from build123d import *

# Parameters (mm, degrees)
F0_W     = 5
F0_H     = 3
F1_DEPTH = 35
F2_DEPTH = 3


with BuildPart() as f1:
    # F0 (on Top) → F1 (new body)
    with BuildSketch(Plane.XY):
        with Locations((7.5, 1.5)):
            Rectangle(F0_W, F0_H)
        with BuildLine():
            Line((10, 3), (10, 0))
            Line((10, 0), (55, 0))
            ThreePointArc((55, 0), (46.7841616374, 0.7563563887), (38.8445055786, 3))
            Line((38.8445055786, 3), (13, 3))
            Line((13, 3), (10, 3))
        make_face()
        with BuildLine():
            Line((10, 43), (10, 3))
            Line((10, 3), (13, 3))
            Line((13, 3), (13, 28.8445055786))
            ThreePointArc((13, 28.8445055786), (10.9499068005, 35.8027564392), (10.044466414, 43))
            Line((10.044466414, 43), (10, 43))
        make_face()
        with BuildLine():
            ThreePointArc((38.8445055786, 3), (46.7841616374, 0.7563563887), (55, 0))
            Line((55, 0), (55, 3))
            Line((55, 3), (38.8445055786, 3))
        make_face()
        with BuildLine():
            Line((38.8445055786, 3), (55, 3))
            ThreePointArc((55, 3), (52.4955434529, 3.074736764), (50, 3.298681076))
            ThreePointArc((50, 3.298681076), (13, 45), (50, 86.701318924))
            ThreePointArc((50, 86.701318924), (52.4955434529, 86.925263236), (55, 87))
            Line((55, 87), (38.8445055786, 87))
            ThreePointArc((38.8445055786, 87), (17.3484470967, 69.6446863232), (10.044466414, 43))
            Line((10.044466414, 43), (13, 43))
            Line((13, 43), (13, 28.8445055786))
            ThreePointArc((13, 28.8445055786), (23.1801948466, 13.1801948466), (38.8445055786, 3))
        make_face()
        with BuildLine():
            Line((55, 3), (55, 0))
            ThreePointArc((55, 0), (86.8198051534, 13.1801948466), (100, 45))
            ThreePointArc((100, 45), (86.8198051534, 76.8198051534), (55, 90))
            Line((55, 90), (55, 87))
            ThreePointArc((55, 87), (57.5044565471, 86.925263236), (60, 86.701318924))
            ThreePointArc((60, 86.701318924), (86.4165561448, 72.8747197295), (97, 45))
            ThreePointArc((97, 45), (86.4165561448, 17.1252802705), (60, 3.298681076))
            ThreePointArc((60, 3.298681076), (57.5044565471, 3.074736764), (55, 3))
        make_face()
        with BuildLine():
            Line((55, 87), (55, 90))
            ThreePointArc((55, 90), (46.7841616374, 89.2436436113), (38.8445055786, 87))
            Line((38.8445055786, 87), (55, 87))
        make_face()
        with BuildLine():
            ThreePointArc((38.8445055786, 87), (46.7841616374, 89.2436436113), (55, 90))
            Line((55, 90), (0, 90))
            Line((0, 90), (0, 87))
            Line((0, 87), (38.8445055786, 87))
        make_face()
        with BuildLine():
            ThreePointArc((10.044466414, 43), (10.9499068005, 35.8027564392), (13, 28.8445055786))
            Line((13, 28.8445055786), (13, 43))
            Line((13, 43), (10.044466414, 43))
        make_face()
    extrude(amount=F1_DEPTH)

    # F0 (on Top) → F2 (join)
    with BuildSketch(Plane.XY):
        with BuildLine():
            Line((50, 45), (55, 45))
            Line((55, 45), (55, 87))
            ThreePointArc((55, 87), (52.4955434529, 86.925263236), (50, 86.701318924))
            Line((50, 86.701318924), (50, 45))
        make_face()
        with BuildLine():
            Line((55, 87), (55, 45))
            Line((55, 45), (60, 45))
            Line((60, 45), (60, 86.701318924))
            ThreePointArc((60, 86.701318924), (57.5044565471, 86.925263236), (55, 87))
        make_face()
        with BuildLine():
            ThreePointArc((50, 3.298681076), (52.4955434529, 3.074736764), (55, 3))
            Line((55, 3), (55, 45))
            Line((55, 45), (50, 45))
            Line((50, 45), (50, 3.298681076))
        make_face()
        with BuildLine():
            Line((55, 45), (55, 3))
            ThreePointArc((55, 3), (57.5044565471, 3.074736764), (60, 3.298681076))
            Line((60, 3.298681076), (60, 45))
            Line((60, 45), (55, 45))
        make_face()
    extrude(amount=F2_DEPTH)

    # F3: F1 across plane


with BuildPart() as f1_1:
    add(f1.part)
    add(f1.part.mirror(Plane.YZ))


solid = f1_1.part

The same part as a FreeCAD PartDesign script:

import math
import FreeCAD as App
import Part
import Sketcher
from FreeCAD import Vector
Q = App.Units.Quantity

doc = App.newDocument("Part")
body = doc.addObject("PartDesign::Body", "Body")

sketch1 = body.newObject("Sketcher::SketchObject", "Sketch")
sketch1.AttachmentSupport = (doc.getObject("XY_Plane"), [""])
sketch1.MapMode = "FlatFace"
sketch1.addGeometry([
    Part.ArcOfCircle(Part.Circle(Vector(55, 45, 0), Vector(0, 0, 1), 45), math.radians(111.03947), math.radians(182.547318)),
    Part.LineSegment(Vector(10.044466, 43, 0), Vector(10, 43, 0)),
    Part.LineSegment(Vector(10, 43, 0), Vector(10, 3, 0)),
    Part.LineSegment(Vector(10, 3, 0), Vector(5, 3, 0)),
    Part.LineSegment(Vector(5, 3, 0), Vector(5, 0, 0)),
    Part.LineSegment(Vector(5, 0, 0), Vector(55, 0, 0)),
    Part.ArcOfCircle(Part.Circle(Vector(55, 45, 0), Vector(0, 0, 1), 45), math.radians(-90), math.radians(90)),
    Part.LineSegment(Vector(55, 90, 0), Vector(0, 90, 0)),
    Part.LineSegment(Vector(0, 90, 0), Vector(0, 87, 0)),
    Part.LineSegment(Vector(0, 87, 0), Vector(38.844506, 87, 0)),
    Part.LineSegment(Vector(13, 3, 0), Vector(13, 28.844506, 0)),
    Part.ArcOfCircle(Part.Circle(Vector(55, 45, 0), Vector(0, 0, 1), 45), math.radians(-158.96053), math.radians(-111.03947)),
    Part.LineSegment(Vector(38.844506, 3, 0), Vector(13, 3, 0)),
    Part.ArcOfCircle(Part.Circle(Vector(55, 45, 0), Vector(0, 0, 1), 42), math.radians(90), math.radians(96.837141)),
    Part.ArcOfCircle(Part.Circle(Vector(55, 45, 0), Vector(0, 0, 1), 42), math.radians(83.162859), math.radians(90)),
    Part.ArcOfCircle(Part.Circle(Vector(55, 45, 0), Vector(0, 0, 1), 42), math.radians(0), math.radians(83.162859)),
    Part.ArcOfCircle(Part.Circle(Vector(55, 45, 0), Vector(0, 0, 1), 42), math.radians(-83.162859), math.radians(0)),
    Part.ArcOfCircle(Part.Circle(Vector(55, 45, 0), Vector(0, 0, 1), 42), math.radians(-90), math.radians(-83.162859)),
    Part.ArcOfCircle(Part.Circle(Vector(55, 45, 0), Vector(0, 0, 1), 42), math.radians(-96.837141), math.radians(-90)),
    Part.ArcOfCircle(Part.Circle(Vector(55, 45, 0), Vector(0, 0, 1), 42), math.radians(96.837141), math.radians(263.162859)),
], False)
sketch1.addConstraint([
    Sketcher.Constraint("Coincident", 0, 2, 1, 1),
    Sketcher.Constraint("Coincident", 1, 2, 2, 1),
    Sketcher.Constraint("Coincident", 2, 2, 3, 1),
    Sketcher.Constraint("Coincident", 3, 2, 4, 1),
    Sketcher.Constraint("Coincident", 4, 2, 5, 1),
    Sketcher.Constraint("Tangent", 5, 2, 6, 1),
    Sketcher.Constraint("Tangent", 6, 2, 7, 1),
    Sketcher.Constraint("Coincident", 7, 2, 8, 1),
    Sketcher.Constraint("Coincident", 8, 2, 9, 1),
    Sketcher.Constraint("Coincident", 9, 2, 0, 1),
    Sketcher.Constraint("Coincident", 10, 2, 11, 1),
    Sketcher.Constraint("Coincident", 11, 2, 12, 1),
    Sketcher.Constraint("Coincident", 12, 2, 10, 1),
    Sketcher.Constraint("Tangent", 13, 1, 14, 2),
    Sketcher.Constraint("Tangent", 14, 1, 15, 2),
    Sketcher.Constraint("Tangent", 15, 1, 16, 2),
    Sketcher.Constraint("Tangent", 16, 1, 17, 2),
    Sketcher.Constraint("Tangent", 17, 1, 18, 2),
    Sketcher.Constraint("Tangent", 18, 1, 19, 2),
    Sketcher.Constraint("Tangent", 19, 1, 13, 2),
    Sketcher.Constraint("Horizontal", 1),
    Sketcher.Constraint("Vertical", 2),
    Sketcher.Constraint("Horizontal", 3),
    Sketcher.Constraint("Vertical", 4),
    Sketcher.Constraint("Horizontal", 5),
    Sketcher.Constraint("Horizontal", 7),
    Sketcher.Constraint("Vertical", 8),
    Sketcher.Constraint("Horizontal", 9),
    Sketcher.Constraint("Vertical", 10),
    Sketcher.Constraint("Horizontal", 12),
    Sketcher.Constraint("Coincident", 6, 3, 0, 3),
    Sketcher.Constraint("Coincident", 11, 3, 0, 3),
    Sketcher.Constraint("Coincident", 13, 3, 0, 3),
    Sketcher.Constraint("Coincident", 15, 3, 0, 3),
    Sketcher.Constraint("Coincident", 17, 3, 0, 3),
    Sketcher.Constraint("Equal", 0, 6),
    Sketcher.Constraint("Equal", 6, 11),
    Sketcher.Constraint("PointOnObject", 4, 2, -1),
    Sketcher.Constraint("PointOnObject", 7, 2, -2),
    Sketcher.Constraint("Horizontal", 3, 2, 11, 2),
    Sketcher.Constraint("Horizontal", 9, 2, 13, 1),
    Sketcher.Constraint("Horizontal", 19, 3, 15, 1),
    Sketcher.Constraint("Horizontal", 12, 2, 17, 1),
    Sketcher.Constraint("Horizontal", 16, 1, 18, 1),
    Sketcher.Constraint("Horizontal", 14, 1, 19, 1),
    Sketcher.Constraint("Vertical", 6, 2, 13, 1),
    Sketcher.Constraint("Vertical", 14, 1, 16, 1),
    Sketcher.Constraint("Vertical", 13, 1, 17, 1),
    Sketcher.Constraint("Equal", 12, 10),
    Sketcher.Constraint("Radius", 0, Q("45 mm")),
    Sketcher.Constraint("Radius", 13, Q("42 mm")),
    Sketcher.Constraint("DistanceX", 3, 2, 3, 1, Q("5 mm")),
    Sketcher.Constraint("DistanceX", 5, 1, 5, 2, Q("50 mm")),
    Sketcher.Constraint("DistanceX", 7, 2, 7, 1, Q("55 mm")),
    Sketcher.Constraint("DistanceY", 2, 2, 2, 1, Q("40 mm")),
    Sketcher.Constraint("DistanceX", -1, 1, 14, 1, Q("60 mm")),
])
pad1 = body.newObject("PartDesign::Pad", "Pad")
pad1.Profile = sketch1
pad1.Length = 35

sketch2 = body.newObject("Sketcher::SketchObject", "Sketch001")
sketch2.AttachmentSupport = (doc.getObject("XY_Plane"), [""])
sketch2.MapMode = "FlatFace"
sketch2.addGeometry([
    Part.ArcOfCircle(Part.Circle(Vector(55, 45, 0), Vector(0, 0, 1), 42), math.radians(83.162859), math.radians(90)),
    Part.ArcOfCircle(Part.Circle(Vector(55, 45, 0), Vector(0, 0, 1), 42), math.radians(90), math.radians(96.837141)),
    Part.LineSegment(Vector(50, 86.701319, 0), Vector(50, 3.298681, 0)),
    Part.ArcOfCircle(Part.Circle(Vector(55, 45, 0), Vector(0, 0, 1), 42), math.radians(-96.837141), math.radians(-90)),
    Part.ArcOfCircle(Part.Circle(Vector(55, 45, 0), Vector(0, 0, 1), 42), math.radians(-90), math.radians(-83.162859)),
    Part.LineSegment(Vector(60, 3.298681, 0), Vector(60, 86.701319, 0)),
], False)
sketch2.addConstraint([
    Sketcher.Constraint("Tangent", 0, 2, 1, 1),
    Sketcher.Constraint("Coincident", 1, 2, 2, 1),
    Sketcher.Constraint("Coincident", 2, 2, 3, 1),
    Sketcher.Constraint("Tangent", 3, 2, 4, 1),
    Sketcher.Constraint("Coincident", 4, 2, 5, 1),
    Sketcher.Constraint("Coincident", 5, 2, 0, 1),
    Sketcher.Constraint("Vertical", 2),
    Sketcher.Constraint("Vertical", 5),
    Sketcher.Constraint("Coincident", 3, 3, 0, 3),
    Sketcher.Constraint("Equal", 0, 1),
    Sketcher.Constraint("Equal", 1, 3),
    Sketcher.Constraint("Equal", 3, 4),
    Sketcher.Constraint("Horizontal", 2, 2, 4, 2),
    Sketcher.Constraint("Vertical", 4, 3, 0, 2),
    Sketcher.Constraint("Vertical", 0, 2, 3, 2),
    Sketcher.Constraint("Radius", 0, Q("42 mm")),
    Sketcher.Constraint("DistanceX", -1, 1, 0, 3, Q("55 mm")),
    Sketcher.Constraint("DistanceY", -1, 1, 0, 3, Q("45 mm")),
    Sketcher.Constraint("DistanceX", -1, 1, 1, 2, Q("50 mm")),
])
pad2 = body.newObject("PartDesign::Pad", "Pad001")
pad2.Profile = sketch2
pad2.Length = 3
body2 = doc.addObject("PartDesign::Body", "Body001")
doc.recompute()

body2.BaseFeature = body
doc.recompute()

mirroring = doc.addObject("Part::Mirroring", "Mirroring")
mirroring.Source = body
mirroring.Base = Vector(0, 0, 0)
mirroring.Normal = Vector(1, 0, 0)
body3 = doc.addObject("PartDesign::Body", "Body002")
body3.BaseFeature = mirroring
boolean = body2.newObject("PartDesign::Boolean", "Boolean")
boolean.Type = "Fuse"
boolean.addObjects([body3])
doc.recompute()
mirroring.Visibility = False

doc.recompute()
